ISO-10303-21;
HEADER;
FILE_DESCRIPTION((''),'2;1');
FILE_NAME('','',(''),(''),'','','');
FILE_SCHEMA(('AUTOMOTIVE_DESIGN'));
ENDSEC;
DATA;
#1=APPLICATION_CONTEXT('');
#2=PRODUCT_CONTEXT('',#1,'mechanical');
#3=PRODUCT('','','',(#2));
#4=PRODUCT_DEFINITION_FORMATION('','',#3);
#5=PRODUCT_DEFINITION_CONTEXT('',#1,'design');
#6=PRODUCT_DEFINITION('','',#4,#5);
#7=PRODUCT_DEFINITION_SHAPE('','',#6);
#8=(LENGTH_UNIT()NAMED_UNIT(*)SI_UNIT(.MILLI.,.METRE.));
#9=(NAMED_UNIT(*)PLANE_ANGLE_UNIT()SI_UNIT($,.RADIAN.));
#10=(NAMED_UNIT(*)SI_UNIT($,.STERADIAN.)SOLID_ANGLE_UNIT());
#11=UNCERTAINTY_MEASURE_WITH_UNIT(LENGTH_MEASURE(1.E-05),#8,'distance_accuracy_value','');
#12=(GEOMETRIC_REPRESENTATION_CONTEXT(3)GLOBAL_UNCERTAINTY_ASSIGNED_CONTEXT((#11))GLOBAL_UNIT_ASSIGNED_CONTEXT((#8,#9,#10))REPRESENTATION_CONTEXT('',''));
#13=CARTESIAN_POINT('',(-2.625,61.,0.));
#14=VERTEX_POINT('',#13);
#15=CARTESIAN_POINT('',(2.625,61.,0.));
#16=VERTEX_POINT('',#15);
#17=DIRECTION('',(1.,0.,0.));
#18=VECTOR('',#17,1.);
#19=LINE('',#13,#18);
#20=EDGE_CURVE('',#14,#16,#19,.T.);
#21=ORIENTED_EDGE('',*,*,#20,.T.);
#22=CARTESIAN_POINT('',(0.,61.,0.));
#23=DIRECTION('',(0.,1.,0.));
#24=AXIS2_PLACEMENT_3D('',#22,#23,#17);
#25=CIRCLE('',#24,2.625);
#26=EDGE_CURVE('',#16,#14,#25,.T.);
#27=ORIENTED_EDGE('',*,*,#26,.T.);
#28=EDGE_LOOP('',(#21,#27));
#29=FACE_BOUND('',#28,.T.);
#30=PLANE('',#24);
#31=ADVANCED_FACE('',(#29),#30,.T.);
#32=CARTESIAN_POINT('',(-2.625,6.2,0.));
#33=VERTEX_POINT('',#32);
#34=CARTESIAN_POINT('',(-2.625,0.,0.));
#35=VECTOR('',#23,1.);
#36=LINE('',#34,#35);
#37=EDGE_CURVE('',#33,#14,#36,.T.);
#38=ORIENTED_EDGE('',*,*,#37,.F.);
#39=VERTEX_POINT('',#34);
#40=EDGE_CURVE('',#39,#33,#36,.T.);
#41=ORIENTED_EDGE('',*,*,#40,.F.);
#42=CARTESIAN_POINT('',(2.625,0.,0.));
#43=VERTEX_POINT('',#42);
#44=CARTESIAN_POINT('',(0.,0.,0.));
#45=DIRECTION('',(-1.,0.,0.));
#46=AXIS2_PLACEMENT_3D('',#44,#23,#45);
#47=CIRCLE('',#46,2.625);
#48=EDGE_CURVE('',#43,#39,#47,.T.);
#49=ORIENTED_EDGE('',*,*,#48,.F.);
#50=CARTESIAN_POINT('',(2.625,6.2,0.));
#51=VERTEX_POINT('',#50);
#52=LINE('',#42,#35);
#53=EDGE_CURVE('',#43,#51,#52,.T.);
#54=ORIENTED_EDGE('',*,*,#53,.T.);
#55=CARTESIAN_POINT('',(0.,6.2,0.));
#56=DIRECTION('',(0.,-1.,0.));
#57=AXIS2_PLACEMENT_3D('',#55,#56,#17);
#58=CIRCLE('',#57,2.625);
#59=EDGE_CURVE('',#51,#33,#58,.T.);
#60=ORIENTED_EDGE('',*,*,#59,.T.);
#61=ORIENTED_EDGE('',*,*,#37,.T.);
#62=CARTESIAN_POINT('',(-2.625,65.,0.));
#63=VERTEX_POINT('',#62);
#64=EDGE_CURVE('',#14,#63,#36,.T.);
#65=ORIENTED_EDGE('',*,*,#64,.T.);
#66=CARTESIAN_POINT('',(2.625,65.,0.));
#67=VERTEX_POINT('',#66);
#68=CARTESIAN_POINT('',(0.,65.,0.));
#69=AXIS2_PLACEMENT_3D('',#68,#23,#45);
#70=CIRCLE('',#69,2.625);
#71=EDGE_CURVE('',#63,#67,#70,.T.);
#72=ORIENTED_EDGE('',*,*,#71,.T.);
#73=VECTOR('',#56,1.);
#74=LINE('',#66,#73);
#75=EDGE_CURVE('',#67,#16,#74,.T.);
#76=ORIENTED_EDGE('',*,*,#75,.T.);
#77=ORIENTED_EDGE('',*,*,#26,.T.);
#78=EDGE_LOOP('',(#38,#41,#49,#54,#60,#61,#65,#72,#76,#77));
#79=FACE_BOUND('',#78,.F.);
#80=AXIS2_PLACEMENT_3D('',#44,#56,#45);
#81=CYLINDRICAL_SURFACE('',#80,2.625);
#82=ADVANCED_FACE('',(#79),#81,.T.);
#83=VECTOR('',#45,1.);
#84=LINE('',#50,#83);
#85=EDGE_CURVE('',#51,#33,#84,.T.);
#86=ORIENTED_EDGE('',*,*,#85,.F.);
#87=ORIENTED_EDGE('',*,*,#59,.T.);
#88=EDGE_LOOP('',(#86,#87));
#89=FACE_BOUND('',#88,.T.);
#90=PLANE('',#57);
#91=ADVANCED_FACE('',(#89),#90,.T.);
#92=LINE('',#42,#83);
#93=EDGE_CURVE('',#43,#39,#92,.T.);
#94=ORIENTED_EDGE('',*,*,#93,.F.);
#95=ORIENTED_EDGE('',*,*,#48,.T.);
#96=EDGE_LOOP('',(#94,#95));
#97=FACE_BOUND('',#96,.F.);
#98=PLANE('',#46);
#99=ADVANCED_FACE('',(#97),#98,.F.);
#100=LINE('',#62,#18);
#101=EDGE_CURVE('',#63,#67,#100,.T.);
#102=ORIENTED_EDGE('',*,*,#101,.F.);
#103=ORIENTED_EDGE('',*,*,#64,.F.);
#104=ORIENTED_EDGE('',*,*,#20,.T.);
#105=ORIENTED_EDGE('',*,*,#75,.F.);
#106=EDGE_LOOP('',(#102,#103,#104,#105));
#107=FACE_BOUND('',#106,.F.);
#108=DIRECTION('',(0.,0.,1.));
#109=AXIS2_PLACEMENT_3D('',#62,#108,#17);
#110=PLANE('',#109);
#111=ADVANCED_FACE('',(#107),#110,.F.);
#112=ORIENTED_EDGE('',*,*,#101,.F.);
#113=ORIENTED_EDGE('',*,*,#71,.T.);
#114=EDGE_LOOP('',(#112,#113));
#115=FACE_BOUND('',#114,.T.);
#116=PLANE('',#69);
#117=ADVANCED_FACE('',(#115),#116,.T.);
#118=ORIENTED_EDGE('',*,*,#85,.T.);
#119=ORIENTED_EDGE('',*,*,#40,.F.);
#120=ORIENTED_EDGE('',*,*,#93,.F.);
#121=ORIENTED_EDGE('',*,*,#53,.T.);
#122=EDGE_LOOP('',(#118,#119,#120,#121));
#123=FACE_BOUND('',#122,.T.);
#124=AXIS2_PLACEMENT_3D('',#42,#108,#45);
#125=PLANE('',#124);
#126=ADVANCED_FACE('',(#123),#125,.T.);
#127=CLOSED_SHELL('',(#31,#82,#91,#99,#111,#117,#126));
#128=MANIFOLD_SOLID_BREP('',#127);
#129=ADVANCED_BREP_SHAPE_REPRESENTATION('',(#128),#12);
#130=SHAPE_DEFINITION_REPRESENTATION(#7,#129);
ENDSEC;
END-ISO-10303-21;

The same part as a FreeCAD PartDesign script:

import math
import FreeCAD as App
import Part
import Sketcher

V = App.Vector

doc = App.newDocument("Part")
body = doc.addObject("PartDesign::Body", "Body")

# Sketch on XZ plane
sketch1 = body.newObject("Sketcher::SketchObject", "Sketch")
sketch1.AttachmentSupport = (doc.getObject("XZ_Plane"), [""])
sketch1.MapMode = "FlatFace"
sketch1.addGeometry(Part.Circle(V(0, 0, 0), V(0, 0, 1), 2.6), False)
sketch1.addConstraint([
    Sketcher.Constraint("Coincident", 0, 3, -1, 1),
    Sketcher.Constraint("Diameter", 0, 5.25),
])
pad1 = body.newObject("PartDesign::Pad", "Pad")
pad1.Profile = sketch1
pad1.Length = 65
pad1.Reversed = True

# Sketch on XZ plane
sketch2 = body.newObject("Sketcher::SketchObject", "Sketch001")
sketch2.AttachmentSupport = (doc.getObject("XZ_Plane"), [""])
sketch2.MapMode = "FlatFace"
sketch2.AttachmentOffset = App.Placement(V(0, 0, -65), App.Rotation())
sketch2.addGeometry([
    Part.LineSegment(V(-2.6, 0, 0), V(2.6, 0, 0)),
    Part.ArcOfCircle(Part.Circle(V(0, 0, 0), V(0, 0, 1), 2.6), math.radians(180), math.radians(360)),
], False)
sketch2.addConstraint([
    Sketcher.Constraint("Coincident", 0, 1, 1, 1),
    Sketcher.Constraint("Coincident", 1, 2, 0, 2),
    Sketcher.Constraint("Horizontal", 0),
    Sketcher.Constraint("Coincident", 1, 3, -1, 1),
    Sketcher.Constraint("PointOnObject", 0, 1, -1),
    Sketcher.Constraint("Radius", 1, 2.625),
])
pocket1 = body.newObject("PartDesign::Pocket", "Pocket")
pocket1.Profile = sketch2
pocket1.Length = 4
pocket1.Reversed = True

# Sketch on XZ plane
sketch3 = body.newObject("Sketcher::SketchObject", "Sketch002")
sketch3.AttachmentSupport = (doc.getObject("XZ_Plane"), [""])
sketch3.MapMode = "FlatFace"
sketch3.addGeometry([
    Part.LineSegment(V(-2.6, 0, 0), V(2.6, 0, 0)),
    Part.ArcOfCircle(Part.Circle(V(0, 0, 0), V(0, 0, 1), 2.6), math.radians(0), math.radians(180)),
], False)
sketch3.addConstraint([
    Sketcher.Constraint("Coincident", 0, 1, 1, 2),
    Sketcher.Constraint("Coincident", 1, 1, 0, 2),
    Sketcher.Constraint("Horizontal", 0),
    Sketcher.Constraint("Coincident", 1, 3, -1, 1),
    Sketcher.Constraint("PointOnObject", 0, 1, -1),
    Sketcher.Constraint("Radius", 1, 2.625),
])
pocket2 = body.newObject("PartDesign::Pocket", "Pocket001")
pocket2.Profile = sketch3
pocket2.Length = 6.2

doc.recompute()
